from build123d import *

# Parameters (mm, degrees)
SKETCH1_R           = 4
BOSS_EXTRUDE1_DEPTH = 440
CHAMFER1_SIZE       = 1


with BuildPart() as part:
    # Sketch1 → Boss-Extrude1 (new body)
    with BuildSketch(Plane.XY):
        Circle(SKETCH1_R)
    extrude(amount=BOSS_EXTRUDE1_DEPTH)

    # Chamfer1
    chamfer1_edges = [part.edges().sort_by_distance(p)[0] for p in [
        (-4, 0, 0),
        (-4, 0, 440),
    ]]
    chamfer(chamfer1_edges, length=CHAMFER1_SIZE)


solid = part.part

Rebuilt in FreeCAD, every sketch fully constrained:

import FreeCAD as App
import Part
import Sketcher

V = App.Vector


def edges_at(feature, points):
    """Names of the edges that pass closest to the given points."""
    edges = feature.Shape.Edges
    near = lambda p: min(range(len(edges)), key=lambda i: edges[i].distToShape(Part.Vertex(*p))[0])
    return sorted({f"Edge{near(p) + 1}" for p in points})

doc = App.newDocument("Part")
params = doc.addObject("Spreadsheet::Sheet", "Params")
for row, (alias, value) in enumerate([
    ("sketch1_diameter", "8 mm"),
    ("pad1_length", "440 mm"),
    ("chamfer_size", "1 mm"),
], start=1):
    params.set(f"A{row}", alias)
    params.set(f"B{row}", "=" + value)
    params.setAlias(f"B{row}", alias)

body = doc.addObject("PartDesign::Body", "Body")

# Sketch on XY plane
sketch1 = body.newObject("Sketcher::SketchObject", "Sketch")
sketch1.AttachmentSupport = (doc.getObject("XY_Plane"), [""])
sketch1.MapMode = "FlatFace"
sketch1.addGeometry(Part.Circle(V(0, 0, 0), V(0, 0, 1), 4), False)
sketch1.addConstraint([
    Sketcher.Constraint("Coincident", 0, 3, -1, 1),
    Sketcher.Constraint("Diameter", 0, 8.0),
])
sketch1.setExpression("Constraints[1]", "Params.sketch1_diameter")
pad1 = body.newObject("PartDesign::Pad", "Pad")
pad1.Profile = sketch1
pad1.setExpression("Length", "Params.pad1_length")
doc.recompute()

chamfer = body.newObject("PartDesign::Chamfer", "Chamfer")
chamfer.Base = (pad1, edges_at(pad1, [(-4, 0, 0), (-4, 0, 440)]))
chamfer.setExpression("Size", "Params.chamfer_size")

doc.recompute()
